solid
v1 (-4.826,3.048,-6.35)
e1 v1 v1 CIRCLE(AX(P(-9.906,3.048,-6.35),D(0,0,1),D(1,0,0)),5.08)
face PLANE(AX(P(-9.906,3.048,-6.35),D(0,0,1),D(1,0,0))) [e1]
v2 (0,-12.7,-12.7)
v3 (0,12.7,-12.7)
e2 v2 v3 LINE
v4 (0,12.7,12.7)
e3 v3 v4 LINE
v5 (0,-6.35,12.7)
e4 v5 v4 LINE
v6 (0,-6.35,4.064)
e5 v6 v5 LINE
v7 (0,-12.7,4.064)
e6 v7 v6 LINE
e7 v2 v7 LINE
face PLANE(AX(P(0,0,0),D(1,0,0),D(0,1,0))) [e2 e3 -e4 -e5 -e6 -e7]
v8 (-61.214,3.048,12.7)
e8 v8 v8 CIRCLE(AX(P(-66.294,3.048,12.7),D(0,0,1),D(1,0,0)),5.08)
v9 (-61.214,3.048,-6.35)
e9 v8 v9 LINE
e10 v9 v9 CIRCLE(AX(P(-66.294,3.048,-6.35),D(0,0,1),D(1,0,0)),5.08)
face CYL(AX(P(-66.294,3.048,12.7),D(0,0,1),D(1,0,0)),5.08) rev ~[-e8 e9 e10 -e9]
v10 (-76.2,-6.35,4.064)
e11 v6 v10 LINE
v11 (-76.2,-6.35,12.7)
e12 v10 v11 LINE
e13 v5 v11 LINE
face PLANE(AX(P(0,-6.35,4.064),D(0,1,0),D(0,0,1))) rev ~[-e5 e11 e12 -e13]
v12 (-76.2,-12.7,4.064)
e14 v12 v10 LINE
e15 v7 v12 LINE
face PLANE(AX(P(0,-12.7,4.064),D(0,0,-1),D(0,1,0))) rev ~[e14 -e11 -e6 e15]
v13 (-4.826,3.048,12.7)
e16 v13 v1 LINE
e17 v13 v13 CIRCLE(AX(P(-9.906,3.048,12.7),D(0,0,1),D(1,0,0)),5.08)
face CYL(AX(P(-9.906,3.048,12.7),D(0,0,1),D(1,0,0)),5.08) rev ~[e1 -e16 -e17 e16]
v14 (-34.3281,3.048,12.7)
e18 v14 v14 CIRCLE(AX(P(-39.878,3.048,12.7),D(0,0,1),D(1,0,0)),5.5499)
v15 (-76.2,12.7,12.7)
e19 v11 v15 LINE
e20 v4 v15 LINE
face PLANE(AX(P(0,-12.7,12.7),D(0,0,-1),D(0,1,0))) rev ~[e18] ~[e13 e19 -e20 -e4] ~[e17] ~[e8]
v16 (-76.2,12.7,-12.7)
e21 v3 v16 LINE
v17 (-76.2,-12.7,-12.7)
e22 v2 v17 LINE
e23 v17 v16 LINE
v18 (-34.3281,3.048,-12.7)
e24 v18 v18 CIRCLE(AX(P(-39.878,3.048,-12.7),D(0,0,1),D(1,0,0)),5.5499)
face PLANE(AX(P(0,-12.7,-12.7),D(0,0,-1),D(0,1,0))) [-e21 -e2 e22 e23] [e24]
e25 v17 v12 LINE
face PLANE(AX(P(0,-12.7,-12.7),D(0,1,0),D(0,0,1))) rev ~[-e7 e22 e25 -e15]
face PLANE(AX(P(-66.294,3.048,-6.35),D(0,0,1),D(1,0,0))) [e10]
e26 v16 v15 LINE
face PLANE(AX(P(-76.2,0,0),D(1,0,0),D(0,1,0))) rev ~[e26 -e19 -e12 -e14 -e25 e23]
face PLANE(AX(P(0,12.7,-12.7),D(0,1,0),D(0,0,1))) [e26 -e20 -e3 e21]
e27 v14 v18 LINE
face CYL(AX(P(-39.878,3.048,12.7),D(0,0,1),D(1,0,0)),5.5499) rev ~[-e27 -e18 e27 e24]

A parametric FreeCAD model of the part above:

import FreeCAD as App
import Part
import Sketcher
Q = App.Units.Quantity

doc = App.newDocument("Part")
body = doc.addObject("PartDesign::Body", "Body")

sketch1 = body.newObject("Sketcher::SketchObject", "Sketch")
sketch1.AttachmentSupport = (doc.getObject("YZ_Plane"), [""])
sketch1.MapMode = "FlatFace"
sketch1.addGeometry([
    Part.LineSegment(App.Vector(-13, 13, 0), App.Vector(-13, -13, 0)),
    Part.LineSegment(App.Vector(-13, -13, 0), App.Vector(13, -13, 0)),
    Part.LineSegment(App.Vector(13, -13, 0), App.Vector(13, 13, 0)),
    Part.LineSegment(App.Vector(13, 13, 0), App.Vector(-13, 13, 0)),
], False)
sketch1.addConstraint([
    Sketcher.Constraint("Coincident", 0, 2, 1, 1),
    Sketcher.Constraint("Coincident", 1, 2, 2, 1),
    Sketcher.Constraint("Coincident", 2, 2, 3, 1),
    Sketcher.Constraint("Coincident", 3, 2, 0, 1),
    Sketcher.Constraint("Vertical", 0),
    Sketcher.Constraint("Horizontal", 1),
    Sketcher.Constraint("Vertical", 2),
    Sketcher.Constraint("Horizontal", 3),
    Sketcher.Constraint("Symmetric", 0, 2, 2, 2, -1, 1),
    Sketcher.Constraint("Equal", 3, 0),
    Sketcher.Constraint("DistanceX", 1, 1, 1, 2, Q("1 in")),
])
pad1 = body.newObject("PartDesign::Pad", "Pad")
pad1.Profile = sketch1
pad1.Length = Q("3 in")
pad1.Reversed = True

sketch2 = body.newObject("Sketcher::SketchObject", "Sketch001")
sketch2.AttachmentSupport = (doc.getObject("YZ_Plane"), [""])
sketch2.MapMode = "FlatFace"
sketch2.addGeometry([
    Part.LineSegment(App.Vector(-13, 13, 0), App.Vector(-13, 4, 0)),
    Part.LineSegment(App.Vector(-13, 4, 0), App.Vector(-6, 4, 0)),
    Part.LineSegment(App.Vector(-6, 4, 0), App.Vector(-6, 13, 0)),
    Part.LineSegment(App.Vector(-6, 13, 0), App.Vector(-13, 13, 0)),
], False)
sketch2.addConstraint([
    Sketcher.Constraint("Coincident", 0, 2, 1, 1),
    Sketcher.Constraint("Coincident", 1, 2, 2, 1),
    Sketcher.Constraint("Coincident", 2, 2, 3, 1),
    Sketcher.Constraint("Coincident", 3, 2, 0, 1),
    Sketcher.Constraint("Vertical", 0),
    Sketcher.Constraint("Horizontal", 1),
    Sketcher.Constraint("Vertical", 2),
    Sketcher.Constraint("Horizontal", 3),
    Sketcher.Constraint("DistanceX", 1, 1, 1, 2, Q("0.25 in")),
    Sketcher.Constraint("DistanceY", 0, 2, 0, 1, Q("0.34 in")),
    Sketcher.Constraint("DistanceX", 0, 2, -1, 1, Q("0.5 in")),
    Sketcher.Constraint("DistanceY", -1, 1, 2, 2, Q("0.5 in")),
])
pocket1 = body.newObject("PartDesign::Pocket", "Pocket")
pocket1.Profile = sketch2
pocket1.Length = Q("3 in")

sketch3 = body.newObject("Sketcher::SketchObject", "Sketch002")
sketch3.AttachmentSupport = (doc.getObject("XY_Plane"), [""])
sketch3.MapMode = "FlatFace"
sketch3.AttachmentOffset = App.Placement(App.Vector(0, 0, 0.5 * 25.4), App.Rotation())
sketch3.addGeometry([
    Part.Circle(App.Vector(-66, 3, 0), App.Vector(0, 0, 1), 5),
    Part.Circle(App.Vector(-10, 3, 0), App.Vector(0, 0, 1), 5),
], False)
sketch3.addConstraint([
    Sketcher.Constraint("Equal", 0, 1),
    Sketcher.Constraint("Horizontal", 0, 3, 1, 3),
    Sketcher.Constraint("Diameter", 0, Q("0.4 in")),
    Sketcher.Constraint("DistanceX", 0, 3, -1, 1, Q("2.61 in")),
    Sketcher.Constraint("DistanceY", -1, 1, 0, 3, Q("0.12 in")),
    Sketcher.Constraint("DistanceX", 1, 3, -1, 1, Q("0.39 in")),
])
pocket2 = body.newObject("PartDesign::Pocket", "Pocket001")
pocket2.Profile = sketch3
pocket2.Length = Q("0.75 in")

sketch4 = body.newObject("Sketcher::SketchObject", "Sketch003")
sketch4.AttachmentSupport = (doc.getObject("XY_Plane"), [""])
sketch4.MapMode = "FlatFace"
sketch4.AttachmentOffset = App.Placement(App.Vector(0, 0, 0.5 * 25.4), App.Rotation())
sketch4.addGeometry(Part.Circle(App.Vector(-40, 3, 0), App.Vector(0, 0, 1), 6), False)
sketch4.addConstraint([
    Sketcher.Constraint("Diameter", 0, Q("0.437 in")),
    Sketcher.Constraint("DistanceX", 0, 3, -1, 1, Q("1.57 in")),
    Sketcher.Constraint("DistanceY", -1, 1, 0, 3, Q("0.12 in")),
])
pocket3 = body.newObject("PartDesign::Pocket", "Pocket002")
pocket3.Profile = sketch4
pocket3.Length = Q("2.89 in")

doc.recompute()
